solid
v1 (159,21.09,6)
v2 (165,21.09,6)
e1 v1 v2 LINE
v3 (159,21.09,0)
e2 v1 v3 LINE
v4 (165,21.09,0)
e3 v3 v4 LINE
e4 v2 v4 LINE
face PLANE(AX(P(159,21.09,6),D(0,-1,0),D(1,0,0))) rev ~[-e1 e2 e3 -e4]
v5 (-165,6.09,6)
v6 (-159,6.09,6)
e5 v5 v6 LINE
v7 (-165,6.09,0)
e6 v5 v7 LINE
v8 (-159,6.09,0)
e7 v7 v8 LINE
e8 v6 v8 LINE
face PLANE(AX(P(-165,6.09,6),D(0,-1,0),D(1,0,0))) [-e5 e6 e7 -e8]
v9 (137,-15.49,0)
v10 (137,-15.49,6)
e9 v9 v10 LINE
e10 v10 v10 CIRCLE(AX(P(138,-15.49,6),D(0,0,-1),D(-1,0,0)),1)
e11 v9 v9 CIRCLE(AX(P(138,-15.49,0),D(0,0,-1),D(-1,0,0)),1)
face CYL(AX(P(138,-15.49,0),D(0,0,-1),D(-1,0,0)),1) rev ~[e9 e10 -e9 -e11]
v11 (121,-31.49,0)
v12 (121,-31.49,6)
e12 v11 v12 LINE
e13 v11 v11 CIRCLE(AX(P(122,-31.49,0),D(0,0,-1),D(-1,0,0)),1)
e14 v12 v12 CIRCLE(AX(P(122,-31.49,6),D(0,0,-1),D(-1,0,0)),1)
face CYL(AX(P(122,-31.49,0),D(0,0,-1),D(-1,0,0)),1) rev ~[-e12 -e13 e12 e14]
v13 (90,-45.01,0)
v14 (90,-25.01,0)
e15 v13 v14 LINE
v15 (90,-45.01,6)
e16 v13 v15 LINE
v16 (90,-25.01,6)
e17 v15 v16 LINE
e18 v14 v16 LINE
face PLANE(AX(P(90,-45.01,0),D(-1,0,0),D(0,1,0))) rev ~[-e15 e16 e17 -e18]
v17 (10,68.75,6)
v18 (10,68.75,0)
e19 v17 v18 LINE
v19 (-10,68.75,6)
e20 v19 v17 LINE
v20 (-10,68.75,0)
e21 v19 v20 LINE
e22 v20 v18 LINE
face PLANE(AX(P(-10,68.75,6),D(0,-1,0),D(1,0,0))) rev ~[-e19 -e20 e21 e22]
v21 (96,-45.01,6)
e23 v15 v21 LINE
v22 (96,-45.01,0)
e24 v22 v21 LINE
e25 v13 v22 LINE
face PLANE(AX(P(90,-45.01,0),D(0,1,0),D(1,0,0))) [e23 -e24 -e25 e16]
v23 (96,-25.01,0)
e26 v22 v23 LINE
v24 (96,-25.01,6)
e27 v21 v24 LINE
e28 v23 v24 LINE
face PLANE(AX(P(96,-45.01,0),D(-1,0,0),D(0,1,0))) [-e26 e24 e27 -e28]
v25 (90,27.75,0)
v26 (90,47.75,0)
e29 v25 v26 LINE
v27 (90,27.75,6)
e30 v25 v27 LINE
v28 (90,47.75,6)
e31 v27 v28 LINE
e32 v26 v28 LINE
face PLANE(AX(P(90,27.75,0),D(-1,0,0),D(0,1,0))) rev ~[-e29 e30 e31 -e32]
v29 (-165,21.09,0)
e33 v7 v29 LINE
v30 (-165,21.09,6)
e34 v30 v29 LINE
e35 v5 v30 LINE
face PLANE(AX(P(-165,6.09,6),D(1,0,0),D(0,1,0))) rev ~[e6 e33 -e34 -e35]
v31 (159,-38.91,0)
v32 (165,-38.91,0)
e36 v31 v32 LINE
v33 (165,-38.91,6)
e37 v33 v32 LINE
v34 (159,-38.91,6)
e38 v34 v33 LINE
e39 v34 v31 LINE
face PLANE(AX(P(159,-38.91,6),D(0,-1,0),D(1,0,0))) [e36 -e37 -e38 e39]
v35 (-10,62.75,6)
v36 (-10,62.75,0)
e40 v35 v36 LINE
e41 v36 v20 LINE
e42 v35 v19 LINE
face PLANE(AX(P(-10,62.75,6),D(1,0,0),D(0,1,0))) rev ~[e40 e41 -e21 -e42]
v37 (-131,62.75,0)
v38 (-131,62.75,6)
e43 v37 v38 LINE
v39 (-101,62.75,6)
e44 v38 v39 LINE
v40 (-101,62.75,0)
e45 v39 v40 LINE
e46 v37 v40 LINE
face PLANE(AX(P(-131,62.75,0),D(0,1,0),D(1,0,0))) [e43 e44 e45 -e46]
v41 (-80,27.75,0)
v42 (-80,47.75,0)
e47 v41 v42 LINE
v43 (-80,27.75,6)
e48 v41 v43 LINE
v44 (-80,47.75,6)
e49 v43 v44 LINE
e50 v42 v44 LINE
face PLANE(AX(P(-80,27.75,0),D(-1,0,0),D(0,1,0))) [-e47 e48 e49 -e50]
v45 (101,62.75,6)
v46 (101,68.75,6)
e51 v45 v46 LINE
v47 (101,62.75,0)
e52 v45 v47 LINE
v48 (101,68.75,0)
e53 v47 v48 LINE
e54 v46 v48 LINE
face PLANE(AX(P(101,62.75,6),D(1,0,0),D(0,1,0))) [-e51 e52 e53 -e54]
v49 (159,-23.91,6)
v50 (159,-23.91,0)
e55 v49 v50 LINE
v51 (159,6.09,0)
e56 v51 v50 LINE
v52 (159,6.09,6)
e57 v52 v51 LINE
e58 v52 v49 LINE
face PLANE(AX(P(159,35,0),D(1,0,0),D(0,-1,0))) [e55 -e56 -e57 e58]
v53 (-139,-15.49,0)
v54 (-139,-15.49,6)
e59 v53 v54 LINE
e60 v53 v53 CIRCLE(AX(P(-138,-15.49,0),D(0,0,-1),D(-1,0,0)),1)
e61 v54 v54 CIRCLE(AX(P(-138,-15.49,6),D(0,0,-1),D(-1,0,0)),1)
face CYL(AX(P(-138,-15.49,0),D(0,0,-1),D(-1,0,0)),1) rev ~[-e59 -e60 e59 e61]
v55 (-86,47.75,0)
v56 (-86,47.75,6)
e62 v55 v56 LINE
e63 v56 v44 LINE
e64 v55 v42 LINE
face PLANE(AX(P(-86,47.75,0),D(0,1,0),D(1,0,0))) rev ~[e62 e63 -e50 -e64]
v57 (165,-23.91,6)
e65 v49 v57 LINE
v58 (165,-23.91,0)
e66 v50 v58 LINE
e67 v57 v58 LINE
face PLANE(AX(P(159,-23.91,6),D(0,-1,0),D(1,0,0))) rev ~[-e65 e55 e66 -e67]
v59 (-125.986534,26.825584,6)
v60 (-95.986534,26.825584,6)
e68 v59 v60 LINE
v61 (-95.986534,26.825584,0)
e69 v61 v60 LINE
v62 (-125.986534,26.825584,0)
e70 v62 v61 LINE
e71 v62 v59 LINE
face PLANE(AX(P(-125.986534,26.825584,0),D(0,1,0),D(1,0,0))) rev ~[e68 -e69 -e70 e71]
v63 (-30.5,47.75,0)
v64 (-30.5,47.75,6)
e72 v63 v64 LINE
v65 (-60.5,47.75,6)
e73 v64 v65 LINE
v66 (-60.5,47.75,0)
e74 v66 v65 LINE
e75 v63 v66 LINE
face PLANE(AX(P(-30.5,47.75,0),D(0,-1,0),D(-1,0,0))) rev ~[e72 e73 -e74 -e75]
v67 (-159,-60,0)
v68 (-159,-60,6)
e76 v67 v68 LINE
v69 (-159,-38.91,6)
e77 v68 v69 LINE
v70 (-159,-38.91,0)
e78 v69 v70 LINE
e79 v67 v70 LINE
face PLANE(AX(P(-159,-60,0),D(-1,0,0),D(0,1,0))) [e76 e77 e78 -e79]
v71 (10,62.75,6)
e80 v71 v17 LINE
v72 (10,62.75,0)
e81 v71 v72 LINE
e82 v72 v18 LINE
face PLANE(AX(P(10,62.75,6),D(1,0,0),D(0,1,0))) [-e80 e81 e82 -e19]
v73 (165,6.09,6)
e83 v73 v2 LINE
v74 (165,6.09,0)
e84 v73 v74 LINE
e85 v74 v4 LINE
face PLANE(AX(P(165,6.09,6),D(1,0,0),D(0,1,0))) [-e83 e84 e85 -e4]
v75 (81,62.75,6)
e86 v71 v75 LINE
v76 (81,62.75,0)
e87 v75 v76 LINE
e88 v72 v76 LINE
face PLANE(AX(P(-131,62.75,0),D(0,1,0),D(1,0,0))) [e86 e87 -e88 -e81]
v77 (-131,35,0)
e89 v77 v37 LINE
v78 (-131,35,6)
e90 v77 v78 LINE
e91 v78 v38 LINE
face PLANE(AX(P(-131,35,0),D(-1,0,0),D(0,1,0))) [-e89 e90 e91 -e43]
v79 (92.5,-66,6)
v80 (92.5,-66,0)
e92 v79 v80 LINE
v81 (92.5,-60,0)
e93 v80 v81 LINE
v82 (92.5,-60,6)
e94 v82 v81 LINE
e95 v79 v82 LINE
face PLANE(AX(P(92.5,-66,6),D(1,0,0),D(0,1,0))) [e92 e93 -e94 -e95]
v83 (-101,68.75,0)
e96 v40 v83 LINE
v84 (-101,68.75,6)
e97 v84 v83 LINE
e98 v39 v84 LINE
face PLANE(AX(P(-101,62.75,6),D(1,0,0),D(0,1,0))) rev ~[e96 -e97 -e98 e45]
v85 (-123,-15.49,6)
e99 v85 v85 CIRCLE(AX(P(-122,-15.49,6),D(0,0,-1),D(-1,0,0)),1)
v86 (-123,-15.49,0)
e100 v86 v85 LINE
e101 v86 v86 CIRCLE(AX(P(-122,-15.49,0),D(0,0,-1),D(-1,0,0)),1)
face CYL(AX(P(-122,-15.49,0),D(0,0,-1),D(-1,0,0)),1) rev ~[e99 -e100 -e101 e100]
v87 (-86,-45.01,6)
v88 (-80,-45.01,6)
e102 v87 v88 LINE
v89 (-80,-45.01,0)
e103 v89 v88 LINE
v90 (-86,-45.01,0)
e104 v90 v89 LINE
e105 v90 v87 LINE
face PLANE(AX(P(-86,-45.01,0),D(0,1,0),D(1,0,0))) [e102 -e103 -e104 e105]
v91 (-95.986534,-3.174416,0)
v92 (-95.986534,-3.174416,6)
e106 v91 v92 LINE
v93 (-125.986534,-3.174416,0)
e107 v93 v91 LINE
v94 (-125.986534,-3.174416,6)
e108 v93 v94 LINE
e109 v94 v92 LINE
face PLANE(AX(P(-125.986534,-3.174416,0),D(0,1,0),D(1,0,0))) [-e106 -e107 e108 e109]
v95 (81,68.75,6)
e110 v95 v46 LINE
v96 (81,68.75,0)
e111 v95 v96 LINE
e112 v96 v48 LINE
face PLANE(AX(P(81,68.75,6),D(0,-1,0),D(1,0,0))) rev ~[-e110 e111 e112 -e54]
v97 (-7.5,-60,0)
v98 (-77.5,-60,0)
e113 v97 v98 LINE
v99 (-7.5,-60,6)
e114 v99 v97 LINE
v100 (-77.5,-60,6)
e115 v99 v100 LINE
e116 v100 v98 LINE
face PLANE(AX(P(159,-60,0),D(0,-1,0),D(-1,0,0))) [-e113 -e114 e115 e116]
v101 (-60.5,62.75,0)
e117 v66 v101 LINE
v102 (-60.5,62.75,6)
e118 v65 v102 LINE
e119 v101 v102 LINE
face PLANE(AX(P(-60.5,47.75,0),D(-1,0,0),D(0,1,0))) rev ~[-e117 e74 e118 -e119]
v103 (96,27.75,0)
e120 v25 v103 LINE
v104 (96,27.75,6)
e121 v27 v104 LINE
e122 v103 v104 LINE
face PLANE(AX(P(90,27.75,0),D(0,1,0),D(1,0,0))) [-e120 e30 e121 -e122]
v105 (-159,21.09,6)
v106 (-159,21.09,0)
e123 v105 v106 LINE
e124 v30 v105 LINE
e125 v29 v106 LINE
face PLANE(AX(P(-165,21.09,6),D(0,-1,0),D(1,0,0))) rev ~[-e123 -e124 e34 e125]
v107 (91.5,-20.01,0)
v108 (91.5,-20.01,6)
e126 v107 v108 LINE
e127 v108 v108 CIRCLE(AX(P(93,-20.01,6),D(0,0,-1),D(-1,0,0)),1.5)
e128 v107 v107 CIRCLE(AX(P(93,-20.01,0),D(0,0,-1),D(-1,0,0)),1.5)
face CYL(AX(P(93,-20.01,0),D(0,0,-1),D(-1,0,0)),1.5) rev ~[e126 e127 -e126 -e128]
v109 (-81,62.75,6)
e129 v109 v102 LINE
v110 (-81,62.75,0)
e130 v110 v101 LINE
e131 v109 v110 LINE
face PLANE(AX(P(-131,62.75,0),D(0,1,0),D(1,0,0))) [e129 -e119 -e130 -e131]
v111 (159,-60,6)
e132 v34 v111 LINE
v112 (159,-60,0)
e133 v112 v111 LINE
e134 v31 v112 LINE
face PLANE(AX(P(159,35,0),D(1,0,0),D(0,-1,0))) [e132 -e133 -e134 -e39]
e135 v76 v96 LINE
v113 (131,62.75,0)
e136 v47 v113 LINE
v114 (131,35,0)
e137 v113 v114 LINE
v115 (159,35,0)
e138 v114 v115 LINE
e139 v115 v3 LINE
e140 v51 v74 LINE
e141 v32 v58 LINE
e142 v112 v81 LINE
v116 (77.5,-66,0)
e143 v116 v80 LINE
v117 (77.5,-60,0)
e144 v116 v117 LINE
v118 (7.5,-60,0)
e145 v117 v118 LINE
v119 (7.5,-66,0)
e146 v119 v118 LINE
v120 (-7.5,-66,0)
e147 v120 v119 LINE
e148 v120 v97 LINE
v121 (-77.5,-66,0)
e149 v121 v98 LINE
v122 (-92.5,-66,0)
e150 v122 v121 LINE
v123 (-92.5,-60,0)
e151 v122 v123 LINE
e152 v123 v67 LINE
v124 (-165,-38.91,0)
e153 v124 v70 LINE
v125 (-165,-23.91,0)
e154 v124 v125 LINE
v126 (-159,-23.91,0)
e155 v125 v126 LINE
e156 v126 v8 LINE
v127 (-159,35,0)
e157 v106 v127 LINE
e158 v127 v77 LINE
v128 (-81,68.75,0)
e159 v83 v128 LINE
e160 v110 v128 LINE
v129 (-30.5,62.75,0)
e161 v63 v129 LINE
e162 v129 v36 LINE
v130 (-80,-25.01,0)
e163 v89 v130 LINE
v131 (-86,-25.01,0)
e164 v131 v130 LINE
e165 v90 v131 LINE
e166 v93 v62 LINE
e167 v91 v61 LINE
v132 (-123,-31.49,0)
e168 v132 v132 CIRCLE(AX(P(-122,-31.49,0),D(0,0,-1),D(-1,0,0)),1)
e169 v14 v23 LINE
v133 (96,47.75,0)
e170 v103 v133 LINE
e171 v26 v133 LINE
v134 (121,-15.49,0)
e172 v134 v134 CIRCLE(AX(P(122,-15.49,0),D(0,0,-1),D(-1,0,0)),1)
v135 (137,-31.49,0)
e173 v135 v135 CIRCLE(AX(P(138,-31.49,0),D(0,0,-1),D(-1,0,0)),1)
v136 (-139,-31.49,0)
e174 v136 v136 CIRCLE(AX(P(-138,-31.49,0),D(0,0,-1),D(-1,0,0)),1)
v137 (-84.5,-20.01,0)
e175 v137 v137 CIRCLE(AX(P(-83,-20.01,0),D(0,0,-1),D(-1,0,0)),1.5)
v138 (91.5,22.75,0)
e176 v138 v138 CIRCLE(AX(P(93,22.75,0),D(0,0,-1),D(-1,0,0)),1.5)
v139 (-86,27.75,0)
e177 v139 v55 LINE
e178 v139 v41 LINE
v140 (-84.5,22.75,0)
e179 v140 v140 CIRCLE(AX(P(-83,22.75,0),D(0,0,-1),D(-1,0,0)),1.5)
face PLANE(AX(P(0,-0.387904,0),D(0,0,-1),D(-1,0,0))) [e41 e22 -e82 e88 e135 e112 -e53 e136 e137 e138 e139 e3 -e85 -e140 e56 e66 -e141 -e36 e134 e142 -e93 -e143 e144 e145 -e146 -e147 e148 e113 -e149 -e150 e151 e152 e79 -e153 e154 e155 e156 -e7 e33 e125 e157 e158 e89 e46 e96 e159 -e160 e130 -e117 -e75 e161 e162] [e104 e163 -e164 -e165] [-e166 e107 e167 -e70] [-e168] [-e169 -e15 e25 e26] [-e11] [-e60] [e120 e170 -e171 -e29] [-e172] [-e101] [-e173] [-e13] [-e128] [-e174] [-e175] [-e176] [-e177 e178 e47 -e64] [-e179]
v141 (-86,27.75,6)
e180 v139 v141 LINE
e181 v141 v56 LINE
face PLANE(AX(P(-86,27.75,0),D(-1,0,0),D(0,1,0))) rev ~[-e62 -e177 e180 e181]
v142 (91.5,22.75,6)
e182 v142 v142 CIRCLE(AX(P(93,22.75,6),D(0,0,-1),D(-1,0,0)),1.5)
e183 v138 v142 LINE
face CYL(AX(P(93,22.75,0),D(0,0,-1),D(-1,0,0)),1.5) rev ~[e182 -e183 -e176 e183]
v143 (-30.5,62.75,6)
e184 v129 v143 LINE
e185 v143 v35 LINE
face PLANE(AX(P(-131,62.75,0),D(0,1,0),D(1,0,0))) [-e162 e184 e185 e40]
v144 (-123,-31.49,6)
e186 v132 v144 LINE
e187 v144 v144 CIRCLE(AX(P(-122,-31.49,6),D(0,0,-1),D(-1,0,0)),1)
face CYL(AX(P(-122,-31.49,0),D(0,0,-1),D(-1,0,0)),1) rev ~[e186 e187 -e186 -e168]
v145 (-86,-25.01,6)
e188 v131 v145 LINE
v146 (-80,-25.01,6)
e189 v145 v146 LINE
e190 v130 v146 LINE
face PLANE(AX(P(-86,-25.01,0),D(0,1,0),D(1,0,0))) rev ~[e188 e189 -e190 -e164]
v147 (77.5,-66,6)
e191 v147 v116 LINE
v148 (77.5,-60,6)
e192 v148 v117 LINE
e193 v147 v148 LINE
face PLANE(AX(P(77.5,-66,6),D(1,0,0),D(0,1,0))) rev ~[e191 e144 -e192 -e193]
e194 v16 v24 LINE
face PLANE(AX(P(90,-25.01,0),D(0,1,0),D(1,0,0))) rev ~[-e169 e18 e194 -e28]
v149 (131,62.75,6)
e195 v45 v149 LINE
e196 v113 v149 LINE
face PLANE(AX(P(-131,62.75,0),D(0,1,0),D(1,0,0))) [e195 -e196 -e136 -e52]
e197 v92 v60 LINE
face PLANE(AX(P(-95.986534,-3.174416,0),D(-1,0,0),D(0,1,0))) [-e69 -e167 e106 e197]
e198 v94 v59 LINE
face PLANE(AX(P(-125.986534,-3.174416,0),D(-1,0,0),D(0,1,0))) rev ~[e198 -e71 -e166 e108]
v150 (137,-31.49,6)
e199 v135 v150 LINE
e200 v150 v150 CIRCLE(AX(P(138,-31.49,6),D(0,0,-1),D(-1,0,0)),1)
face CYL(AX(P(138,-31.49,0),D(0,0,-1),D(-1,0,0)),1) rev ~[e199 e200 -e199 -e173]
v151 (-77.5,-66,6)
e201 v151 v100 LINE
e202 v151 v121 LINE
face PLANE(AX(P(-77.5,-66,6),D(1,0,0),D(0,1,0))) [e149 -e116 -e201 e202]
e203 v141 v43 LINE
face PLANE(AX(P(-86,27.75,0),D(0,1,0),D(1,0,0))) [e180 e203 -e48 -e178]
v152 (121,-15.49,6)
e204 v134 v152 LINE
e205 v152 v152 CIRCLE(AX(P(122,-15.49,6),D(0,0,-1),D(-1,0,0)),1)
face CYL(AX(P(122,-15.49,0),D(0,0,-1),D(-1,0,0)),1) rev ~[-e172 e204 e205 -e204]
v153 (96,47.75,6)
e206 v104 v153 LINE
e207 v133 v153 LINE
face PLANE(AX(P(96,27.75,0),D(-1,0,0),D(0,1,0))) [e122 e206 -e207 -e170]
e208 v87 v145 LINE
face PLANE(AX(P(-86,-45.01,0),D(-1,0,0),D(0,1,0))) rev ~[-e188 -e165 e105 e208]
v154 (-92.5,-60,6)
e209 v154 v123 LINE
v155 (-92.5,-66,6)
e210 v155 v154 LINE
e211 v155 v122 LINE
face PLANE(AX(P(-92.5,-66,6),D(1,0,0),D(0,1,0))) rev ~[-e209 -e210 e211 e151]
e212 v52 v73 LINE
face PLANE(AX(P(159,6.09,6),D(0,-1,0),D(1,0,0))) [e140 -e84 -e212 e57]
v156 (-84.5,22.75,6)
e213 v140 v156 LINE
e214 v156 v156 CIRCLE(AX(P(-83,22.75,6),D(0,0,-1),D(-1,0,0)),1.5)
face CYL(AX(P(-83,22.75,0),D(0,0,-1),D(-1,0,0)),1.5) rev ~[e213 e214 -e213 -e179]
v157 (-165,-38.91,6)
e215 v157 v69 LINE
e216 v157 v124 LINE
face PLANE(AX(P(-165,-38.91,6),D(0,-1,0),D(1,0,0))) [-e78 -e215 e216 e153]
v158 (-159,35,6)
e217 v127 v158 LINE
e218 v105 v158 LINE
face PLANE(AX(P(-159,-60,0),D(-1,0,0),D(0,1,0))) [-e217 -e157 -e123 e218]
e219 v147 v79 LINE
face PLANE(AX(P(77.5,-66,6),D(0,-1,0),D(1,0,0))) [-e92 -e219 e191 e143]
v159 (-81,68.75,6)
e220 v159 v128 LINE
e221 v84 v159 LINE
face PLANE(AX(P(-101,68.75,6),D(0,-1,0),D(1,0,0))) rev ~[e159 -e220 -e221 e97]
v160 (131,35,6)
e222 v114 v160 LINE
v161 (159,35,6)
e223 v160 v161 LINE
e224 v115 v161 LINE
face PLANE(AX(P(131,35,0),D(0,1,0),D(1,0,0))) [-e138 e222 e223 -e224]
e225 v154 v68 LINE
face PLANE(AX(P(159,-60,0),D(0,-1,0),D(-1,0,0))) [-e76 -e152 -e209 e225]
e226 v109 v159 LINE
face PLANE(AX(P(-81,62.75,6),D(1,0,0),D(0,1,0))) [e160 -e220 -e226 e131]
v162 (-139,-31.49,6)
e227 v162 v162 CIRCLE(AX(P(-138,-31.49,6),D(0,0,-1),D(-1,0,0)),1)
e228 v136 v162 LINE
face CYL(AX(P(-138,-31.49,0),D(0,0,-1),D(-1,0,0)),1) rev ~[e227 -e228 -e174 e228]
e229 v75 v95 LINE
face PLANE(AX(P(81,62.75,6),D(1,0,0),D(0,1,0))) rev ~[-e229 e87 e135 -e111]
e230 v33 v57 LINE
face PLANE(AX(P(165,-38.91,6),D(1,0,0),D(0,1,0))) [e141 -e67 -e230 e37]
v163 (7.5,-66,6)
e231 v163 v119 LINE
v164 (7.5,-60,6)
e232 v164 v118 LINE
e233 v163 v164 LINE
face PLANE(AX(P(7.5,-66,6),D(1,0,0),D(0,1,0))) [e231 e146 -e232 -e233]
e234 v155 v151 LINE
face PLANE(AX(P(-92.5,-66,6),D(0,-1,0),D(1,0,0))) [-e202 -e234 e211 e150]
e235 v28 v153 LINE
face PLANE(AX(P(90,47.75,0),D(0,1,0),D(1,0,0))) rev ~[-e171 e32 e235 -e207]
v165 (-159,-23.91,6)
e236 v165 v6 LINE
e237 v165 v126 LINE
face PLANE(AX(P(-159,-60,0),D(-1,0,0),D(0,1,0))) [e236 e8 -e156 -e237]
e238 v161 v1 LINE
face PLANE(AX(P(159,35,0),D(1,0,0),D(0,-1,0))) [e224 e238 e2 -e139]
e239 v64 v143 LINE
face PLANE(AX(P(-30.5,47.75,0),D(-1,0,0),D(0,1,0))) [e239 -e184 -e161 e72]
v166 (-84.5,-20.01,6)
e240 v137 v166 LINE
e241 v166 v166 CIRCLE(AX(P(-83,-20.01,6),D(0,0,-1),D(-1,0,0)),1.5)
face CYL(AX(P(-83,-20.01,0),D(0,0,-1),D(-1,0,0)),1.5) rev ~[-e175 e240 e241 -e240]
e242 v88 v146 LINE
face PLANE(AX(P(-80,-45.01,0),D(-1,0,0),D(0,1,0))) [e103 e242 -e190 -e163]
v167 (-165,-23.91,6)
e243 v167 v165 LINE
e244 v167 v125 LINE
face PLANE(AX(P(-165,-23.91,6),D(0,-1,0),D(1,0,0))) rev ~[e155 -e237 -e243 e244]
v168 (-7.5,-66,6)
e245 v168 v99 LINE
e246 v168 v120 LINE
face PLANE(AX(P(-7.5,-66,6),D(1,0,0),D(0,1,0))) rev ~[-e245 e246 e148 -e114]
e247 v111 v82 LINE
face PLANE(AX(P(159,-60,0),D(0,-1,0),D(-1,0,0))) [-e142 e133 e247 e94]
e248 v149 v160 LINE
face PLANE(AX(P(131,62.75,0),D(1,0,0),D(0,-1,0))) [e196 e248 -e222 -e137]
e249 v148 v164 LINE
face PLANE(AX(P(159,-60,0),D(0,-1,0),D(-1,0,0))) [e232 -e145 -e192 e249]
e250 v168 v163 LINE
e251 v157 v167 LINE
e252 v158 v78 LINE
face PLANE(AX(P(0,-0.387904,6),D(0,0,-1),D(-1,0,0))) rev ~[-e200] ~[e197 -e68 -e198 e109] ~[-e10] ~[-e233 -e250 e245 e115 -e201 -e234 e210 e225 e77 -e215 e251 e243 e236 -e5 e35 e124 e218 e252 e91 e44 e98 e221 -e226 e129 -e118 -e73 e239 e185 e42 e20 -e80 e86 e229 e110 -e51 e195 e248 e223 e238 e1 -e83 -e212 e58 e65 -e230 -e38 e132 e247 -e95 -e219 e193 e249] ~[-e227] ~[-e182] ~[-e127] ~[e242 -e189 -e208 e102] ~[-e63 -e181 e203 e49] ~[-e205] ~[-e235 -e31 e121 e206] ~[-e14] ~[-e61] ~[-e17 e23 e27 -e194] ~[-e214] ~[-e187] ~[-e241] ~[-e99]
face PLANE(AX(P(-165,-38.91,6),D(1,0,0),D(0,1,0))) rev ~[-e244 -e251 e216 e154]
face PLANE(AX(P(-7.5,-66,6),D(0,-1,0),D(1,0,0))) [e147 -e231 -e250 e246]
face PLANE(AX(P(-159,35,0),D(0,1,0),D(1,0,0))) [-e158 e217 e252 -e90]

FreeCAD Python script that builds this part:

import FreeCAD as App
import Part
import Sketcher

V = App.Vector
Q = App.Units.Quantity

doc = App.newDocument("Part")
body = doc.addObject("PartDesign::Body", "Body")

sketch1 = doc.addObject("Sketcher::SketchObject", "Sketch")
body.addObject(sketch1)
sketch1.AttachmentSupport = (doc.XY_Plane, [""])
sketch1.MapMode = "FlatFace"
sketch1.addGeometry(Part.LineSegment(V(-131, 35, 0), V(-159, 35, 0)), False)
sketch1.addGeometry(Part.LineSegment(V(-159, 35, 0), V(-159, -60, 0)), False)
sketch1.addGeometry(Part.LineSegment(V(-159, -60, 0), V(159, -60, 0)), False)
sketch1.addGeometry(Part.LineSegment(V(159, -60, 0), V(159, 35, 0)), False)
sketch1.addGeometry(Part.LineSegment(V(159, 35, 0), V(131, 35, 0)), False)
sketch1.addGeometry(Part.LineSegment(V(131, 35, 0), V(131, 63, 0)), False)
sketch1.addGeometry(Part.LineSegment(V(131, 63, 0), V(-131, 63, 0)), False)
sketch1.addGeometry(Part.LineSegment(V(-131, 63, 0), V(-131, 35, 0)), False)
sketch1.addGeometry(Part.LineSegment(V(90, -45, 0), V(90, -25, 0)), False)
sketch1.addGeometry(Part.LineSegment(V(90, -25, 0), V(96, -25, 0)), False)
sketch1.addGeometry(Part.LineSegment(V(96, -25, 0), V(96, -45, 0)), False)
sketch1.addGeometry(Part.LineSegment(V(96, -45, 0), V(90, -45, 0)), False)
sketch1.addGeometry(Part.LineSegment(V(-86, -45, 0), V(-86, -25, 0)), False)
sketch1.addGeometry(Part.LineSegment(V(-86, -25, 0), V(-80, -25, 0)), False)
sketch1.addGeometry(Part.LineSegment(V(-80, -25, 0), V(-80, -45, 0)), False)
sketch1.addGeometry(Part.LineSegment(V(-80, -45, 0), V(-86, -45, 0)), False)
sketch1.addGeometry(Part.LineSegment(V(90, 28, 0), V(90, 48, 0)), False)
sketch1.addGeometry(Part.LineSegment(V(90, 48, 0), V(96, 48, 0)), False)
sketch1.addGeometry(Part.LineSegment(V(96, 48, 0), V(96, 28, 0)), False)
sketch1.addGeometry(Part.LineSegment(V(96, 28, 0), V(90, 28, 0)), False)
sketch1.addGeometry(Part.LineSegment(V(-126, -3, 0), V(-126, 27, 0)), False)
sketch1.addGeometry(Part.LineSegment(V(-126, 27, 0), V(-96, 27, 0)), False)
sketch1.addGeometry(Part.LineSegment(V(-96, 27, 0), V(-96, -3, 0)), False)
sketch1.addGeometry(Part.LineSegment(V(-96, -3, 0), V(-126, -3, 0)), False)
sketch1.addGeometry(Part.LineSegment(V(-86, 28, 0), V(-86, 48, 0)), False)
sketch1.addGeometry(Part.LineSegment(V(-86, 48, 0), V(-80, 48, 0)), False)
sketch1.addGeometry(Part.LineSegment(V(-80, 48, 0), V(-80, 28, 0)), False)
sketch1.addGeometry(Part.LineSegment(V(-80, 28, 0), V(-86, 28, 0)), False)
sketch1.addConstraint(Sketcher.Constraint("Coincident", 0, 2, 1, 1))
sketch1.addConstraint(Sketcher.Constraint("Coincident", 1, 2, 2, 1))
sketch1.addConstraint(Sketcher.Constraint("Coincident", 2, 2, 3, 1))
sketch1.addConstraint(Sketcher.Constraint("Coincident", 3, 2, 4, 1))
sketch1.addConstraint(Sketcher.Constraint("Coincident", 4, 2, 5, 1))
sketch1.addConstraint(Sketcher.Constraint("Coincident", 5, 2, 6, 1))
sketch1.addConstraint(Sketcher.Constraint("Coincident", 6, 2, 7, 1))
sketch1.addConstraint(Sketcher.Constraint("Coincident", 7, 2, 0, 1))
sketch1.addConstraint(Sketcher.Constraint("Coincident", 8, 2, 9, 1))
sketch1.addConstraint(Sketcher.Constraint("Coincident", 9, 2, 10, 1))
sketch1.addConstraint(Sketcher.Constraint("Coincident", 10, 2, 11, 1))
sketch1.addConstraint(Sketcher.Constraint("Coincident", 11, 2, 8, 1))
sketch1.addConstraint(Sketcher.Constraint("Coincident", 12, 2, 13, 1))
sketch1.addConstraint(Sketcher.Constraint("Coincident", 13, 2, 14, 1))
sketch1.addConstraint(Sketcher.Constraint("Coincident", 14, 2, 15, 1))
sketch1.addConstraint(Sketcher.Constraint("Coincident", 15, 2, 12, 1))
sketch1.addConstraint(Sketcher.Constraint("Coincident", 16, 2, 17, 1))
sketch1.addConstraint(Sketcher.Constraint("Coincident", 17, 2, 18, 1))
sketch1.addConstraint(Sketcher.Constraint("Coincident", 18, 2, 19, 1))
sketch1.addConstraint(Sketcher.Constraint("Coincident", 19, 2, 16, 1))
sketch1.addConstraint(Sketcher.Constraint("Coincident", 20, 2, 21, 1))
sketch1.addConstraint(Sketcher.Constraint("Coincident", 21, 2, 22, 1))
sketch1.addConstraint(Sketcher.Constraint("Coincident", 22, 2, 23, 1))
sketch1.addConstraint(Sketcher.Constraint("Coincident", 23, 2, 20, 1))
sketch1.addConstraint(Sketcher.Constraint("Coincident", 24, 2, 25, 1))
sketch1.addConstraint(Sketcher.Constraint("Coincident", 25, 2, 26, 1))
sketch1.addConstraint(Sketcher.Constraint("Coincident", 26, 2, 27, 1))
sketch1.addConstraint(Sketcher.Constraint("Coincident", 27, 2, 24, 1))
sketch1.addConstraint(Sketcher.Constraint("Horizontal", 0))
sketch1.addConstraint(Sketcher.Constraint("Vertical", 1))
sketch1.addConstraint(Sketcher.Constraint("Horizontal", 2))
sketch1.addConstraint(Sketcher.Constraint("Vertical", 3))
sketch1.addConstraint(Sketcher.Constraint("Horizontal", 4))
sketch1.addConstraint(Sketcher.Constraint("Vertical", 5))
sketch1.addConstraint(Sketcher.Constraint("Horizontal", 6))
sketch1.addConstraint(Sketcher.Constraint("Vertical", 7))
sketch1.addConstraint(Sketcher.Constraint("Vertical", 8))
sketch1.addConstraint(Sketcher.Constraint("Horizontal", 9))
sketch1.addConstraint(Sketcher.Constraint("Vertical", 10))
sketch1.addConstraint(Sketcher.Constraint("Horizontal", 11))
sketch1.addConstraint(Sketcher.Constraint("Vertical", 12))
sketch1.addConstraint(Sketcher.Constraint("Horizontal", 13))
sketch1.addConstraint(Sketcher.Constraint("Vertical", 14))
sketch1.addConstraint(Sketcher.Constraint("Horizontal", 15))
sketch1.addConstraint(Sketcher.Constraint("Vertical", 16))
sketch1.addConstraint(Sketcher.Constraint("Horizontal", 17))
sketch1.addConstraint(Sketcher.Constraint("Vertical", 18))
sketch1.addConstraint(Sketcher.Constraint("Horizontal", 19))
sketch1.addConstraint(Sketcher.Constraint("Vertical", 20))
sketch1.addConstraint(Sketcher.Constraint("Horizontal", 21))
sketch1.addConstraint(Sketcher.Constraint("Vertical", 22))
sketch1.addConstraint(Sketcher.Constraint("Horizontal", 23))
sketch1.addConstraint(Sketcher.Constraint("Vertical", 24))
sketch1.addConstraint(Sketcher.Constraint("Horizontal", 25))
sketch1.addConstraint(Sketcher.Constraint("Vertical", 26))
sketch1.addConstraint(Sketcher.Constraint("Horizontal", 27))
sketch1.addConstraint(Sketcher.Constraint("Symmetric", 0, 2, 3, 2, -2))
sketch1.addConstraint(Sketcher.Constraint("Horizontal", 9, 2, 12, 2))
sketch1.addConstraint(Sketcher.Constraint("Horizontal", 11, 2, 14, 2))
sketch1.addConstraint(Sketcher.Constraint("Horizontal", 17, 2, 24, 2))
sketch1.addConstraint(Sketcher.Constraint("Horizontal", 19, 2, 26, 2))
sketch1.addConstraint(Sketcher.Constraint("Vertical", 11, 2, 16, 2))
sketch1.addConstraint(Sketcher.Constraint("Vertical", 10, 2, 17, 2))
sketch1.addConstraint(Sketcher.Constraint("Vertical", 15, 2, 24, 2))
sketch1.addConstraint(Sketcher.Constraint("Vertical", 14, 2, 25, 2))
sketch1.addConstraint(Sketcher.Constraint("Equal", 0, 4))
sketch1.addConstraint(Sketcher.Constraint("Equal", 11, 13))
sketch1.addConstraint(Sketcher.Constraint("Equal", 14, 16))
sketch1.addConstraint(Sketcher.Constraint("Equal", 23, 20))
sketch1.addConstraint(Sketcher.Constraint("DistanceX", 0, 2, 0, 1, Q("28 mm")))
sketch1.addConstraint(Sketcher.Constraint("DistanceX", 2, 1, 2, 2, Q("318 mm")))
sketch1.addConstraint(Sketcher.Constraint("DistanceX", 9, 1, 9, 2, Q("6 mm")))
sketch1.addConstraint(Sketcher.Constraint("DistanceX", 21, 1, 21, 2, Q("30 mm")))
sketch1.addConstraint(Sketcher.Constraint("DistanceY", 1, 2, 1, 1, Q("95 mm")))
sketch1.addConstraint(Sketcher.Constraint("DistanceY", 8, 1, 8, 2, Q("20 mm")))
sketch1.addConstraint(Sketcher.Constraint("DistanceY", -1, 1, 0, 2, Q("35 mm")))
sketch1.addConstraint(Sketcher.Constraint("DistanceX", -1, 1, 8, 2, Q("90 mm")))
sketch1.addConstraint(Sketcher.Constraint("DistanceX", 12, 2, -1, 1, Q("86 mm")))
sketch1.addConstraint(Sketcher.Constraint("DistanceY", 16, 2, 5, 2, Q("15 mm")))
sketch1.addConstraint(Sketcher.Constraint("DistanceY", 5, 1, 5, 2, Q("27.75 mm")))
sketch1.addConstraint(Sketcher.Constraint("DistanceY", 8, 2, -1, 1, Q("25.01 mm")))
sketch1.addConstraint(Sketcher.Constraint("DistanceX", 20, 2, -1, 1, Q("125.986534 mm")))
sketch1.addConstraint(Sketcher.Constraint("DistanceY", -1, 1, 20, 2, Q("26.825584 mm")))
pad1 = doc.addObject("PartDesign::Pad", "Pad")
body.addObject(pad1)
pad1.Profile = sketch1
pad1.Length = 6

sketch2 = doc.addObject("Sketcher::SketchObject", "Sketch001")
body.addObject(sketch2)
sketch2.AttachmentSupport = (doc.XY_Plane, [""])
sketch2.MapMode = "FlatFace"
sketch2.AttachmentOffset = App.Placement(V(0, 0, 6), App.Rotation())
sketch2.addGeometry(Part.LineSegment(V(-92, -60, 0), V(-92, -66, 0)), False)
sketch2.addGeometry(Part.LineSegment(V(-92, -66, 0), V(-78, -66, 0)), False)
sketch2.addGeometry(Part.LineSegment(V(-78, -66, 0), V(-78, -60, 0)), False)
sketch2.addGeometry(Part.LineSegment(V(-78, -60, 0), V(-92, -60, 0)), False)
sketch2.addGeometry(Part.LineSegment(V(-8, -60, 0), V(-8, -66, 0)), False)
sketch2.addGeometry(Part.LineSegment(V(-8, -66, 0), V(8, -66, 0)), False)
sketch2.addGeometry(Part.LineSegment(V(8, -66, 0), V(8, -60, 0)), False)
sketch2.addGeometry(Part.LineSegment(V(8, -60, 0), V(-8, -60, 0)), False)
sketch2.addGeometry(Part.LineSegment(V(78, -60, 0), V(78, -66, 0)), False)
sketch2.addGeometry(Part.LineSegment(V(78, -66, 0), V(92, -66, 0)), False)
sketch2.addGeometry(Part.LineSegment(V(92, -66, 0), V(92, -60, 0)), False)
sketch2.addGeometry(Part.LineSegment(V(92, -60, 0), V(78, -60, 0)), False)
sketch2.addGeometry(Part.LineSegment(V(-165, 21, 0), V(-165, 6, 0)), False)
sketch2.addGeometry(Part.LineSegment(V(-165, 6, 0), V(-159, 6, 0)), False)
sketch2.addGeometry(Part.LineSegment(V(-159, 6, 0), V(-159, 21, 0)), False)
sketch2.addGeometry(Part.LineSegment(V(-159, 21, 0), V(-165, 21, 0)), False)
sketch2.addGeometry(Part.LineSegment(V(-165, -24, 0), V(-165, -39, 0)), False)
sketch2.addGeometry(Part.LineSegment(V(-165, -39, 0), V(-159, -39, 0)), False)
sketch2.addGeometry(Part.LineSegment(V(-159, -39, 0), V(-159, -24, 0)), False)
sketch2.addGeometry(Part.LineSegment(V(-159, -24, 0), V(-165, -24, 0)), False)
sketch2.addGeometry(Part.LineSegment(V(159, -24, 0), V(159, -39, 0)), False)
sketch2.addGeometry(Part.LineSegment(V(159, -39, 0), V(165, -39, 0)), False)
sketch2.addGeometry(Part.LineSegment(V(165, -39, 0), V(165, -24, 0)), False)
sketch2.addGeometry(Part.LineSegment(V(165, -24, 0), V(159, -24, 0)), False)
sketch2.addGeometry(Part.LineSegment(V(159, 21, 0), V(159, 6, 0)), False)
sketch2.addGeometry(Part.LineSegment(V(159, 6, 0), V(165, 6, 0)), False)
sketch2.addGeometry(Part.LineSegment(V(165, 6, 0), V(165, 21, 0)), False)
sketch2.addGeometry(Part.LineSegment(V(165, 21, 0), V(159, 21, 0)), False)
sketch2.addGeometry(Part.LineSegment(V(81, 69, 0), V(81, 63, 0)), False)
sketch2.addGeometry(Part.LineSegment(V(81, 63, 0), V(101, 63, 0)), False)
sketch2.addGeometry(Part.LineSegment(V(101, 63, 0), V(101, 69, 0)), False)
sketch2.addGeometry(Part.LineSegment(V(101, 69, 0), V(81, 69, 0)), False)
sketch2.addGeometry(Part.LineSegment(V(-101, 69, 0), V(-101, 63, 0)), False)
sketch2.addGeometry(Part.LineSegment(V(-101, 63, 0), V(-81, 63, 0)), False)
sketch2.addGeometry(Part.LineSegment(V(-81, 63, 0), V(-81, 69, 0)), False)
sketch2.addGeometry(Part.LineSegment(V(-81, 69, 0), V(-101, 69, 0)), False)
sketch2.addGeometry(Part.LineSegment(V(-10, 69, 0), V(-10, 63, 0)), False)
sketch2.addGeometry(Part.LineSegment(V(-10, 63, 0), V(10, 63, 0)), False)
sketch2.addGeometry(Part.LineSegment(V(10, 63, 0), V(10, 69, 0)), False)
sketch2.addGeometry(Part.LineSegment(V(10, 69, 0), V(-10, 69, 0)), False)
sketch2.addConstraint(Sketcher.Constraint("Coincident", 0, 2, 1, 1))
sketch2.addConstraint(Sketcher.Constraint("Coincident", 1, 2, 2, 1))
sketch2.addConstraint(Sketcher.Constraint("Coincident", 2, 2, 3, 1))
sketch2.addConstraint(Sketcher.Constraint("Coincident", 3, 2, 0, 1))
sketch2.addConstraint(Sketcher.Constraint("Coincident", 4, 2, 5, 1))
sketch2.addConstraint(Sketcher.Constraint("Coincident", 5, 2, 6, 1))
sketch2.addConstraint(Sketcher.Constraint("Coincident", 6, 2, 7, 1))
sketch2.addConstraint(Sketcher.Constraint("Coincident", 7, 2, 4, 1))
sketch2.addConstraint(Sketcher.Constraint("Coincident", 8, 2, 9, 1))
sketch2.addConstraint(Sketcher.Constraint("Coincident", 9, 2, 10, 1))
sketch2.addConstraint(Sketcher.Constraint("Coincident", 10, 2, 11, 1))
sketch2.addConstraint(Sketcher.Constraint("Coincident", 11, 2, 8, 1))
sketch2.addConstraint(Sketcher.Constraint("Coincident", 12, 2, 13, 1))
sketch2.addConstraint(Sketcher.Constraint("Coincident", 13, 2, 14, 1))
sketch2.addConstraint(Sketcher.Constraint("Coincident", 14, 2, 15, 1))
sketch2.addConstraint(Sketcher.Constraint("Coincident", 15, 2, 12, 1))
sketch2.addConstraint(Sketcher.Constraint("Coincident", 16, 2, 17, 1))
sketch2.addConstraint(Sketcher.Constraint("Coincident", 17, 2, 18, 1))
sketch2.addConstraint(Sketcher.Constraint("Coincident", 18, 2, 19, 1))
sketch2.addConstraint(Sketcher.Constraint("Coincident", 19, 2, 16, 1))
sketch2.addConstraint(Sketcher.Constraint("Coincident", 20, 2, 21, 1))
sketch2.addConstraint(Sketcher.Constraint("Coincident", 21, 2, 22, 1))
sketch2.addConstraint(Sketcher.Constraint("Coincident", 22, 2, 23, 1))
sketch2.addConstraint(Sketcher.Constraint("Coincident", 23, 2, 20, 1))
sketch2.addConstraint(Sketcher.Constraint("Coincident", 24, 2, 25, 1))
sketch2.addConstraint(Sketcher.Constraint("Coincident", 25, 2, 26, 1))
sketch2.addConstraint(Sketcher.Constraint("Coincident", 26, 2, 27, 1))
sketch2.addConstraint(Sketcher.Constraint("Coincident", 27, 2, 24, 1))
sketch2.addConstraint(Sketcher.Constraint("Coincident", 28, 2, 29, 1))
sketch2.addConstraint(Sketcher.Constraint("Coincident", 29, 2, 30, 1))
sketch2.addConstraint(Sketcher.Constraint("Coincident", 30, 2, 31, 1))
sketch2.addConstraint(Sketcher.Constraint("Coincident", 31, 2, 28, 1))
sketch2.addConstraint(Sketcher.Constraint("Coincident", 32, 2, 33, 1))
sketch2.addConstraint(Sketcher.Constraint("Coincident", 33, 2, 34, 1))
sketch2.addConstraint(Sketcher.Constraint("Coincident", 34, 2, 35, 1))
sketch2.addConstraint(Sketcher.Constraint("Coincident", 35, 2, 32, 1))
sketch2.addConstraint(Sketcher.Constraint("Coincident", 36, 2, 37, 1))
sketch2.addConstraint(Sketcher.Constraint("Coincident", 37, 2, 38, 1))
sketch2.addConstraint(Sketcher.Constraint("Coincident", 38, 2, 39, 1))
sketch2.addConstraint(Sketcher.Constraint("Coincident", 39, 2, 36, 1))
sketch2.addConstraint(Sketcher.Constraint("Vertical", 0))
sketch2.addConstraint(Sketcher.Constraint("Horizontal", 1))
sketch2.addConstraint(Sketcher.Constraint("Vertical", 2))
sketch2.addConstraint(Sketcher.Constraint("Horizontal", 3))
sketch2.addConstraint(Sketcher.Constraint("Vertical", 4))
sketch2.addConstraint(Sketcher.Constraint("Horizontal", 5))
sketch2.addConstraint(Sketcher.Constraint("Vertical", 6))
sketch2.addConstraint(Sketcher.Constraint("Horizontal", 7))
sketch2.addConstraint(Sketcher.Constraint("Vertical", 8))
sketch2.addConstraint(Sketcher.Constraint("Horizontal", 9))
sketch2.addConstraint(Sketcher.Constraint("Vertical", 10))
sketch2.addConstraint(Sketcher.Constraint("Horizontal", 11))
sketch2.addConstraint(Sketcher.Constraint("Vertical", 12))
sketch2.addConstraint(Sketcher.Constraint("Horizontal", 13))
sketch2.addConstraint(Sketcher.Constraint("Vertical", 14))
sketch2.addConstraint(Sketcher.Constraint("Horizontal", 15))
sketch2.addConstraint(Sketcher.Constraint("Vertical", 16))
sketch2.addConstraint(Sketcher.Constraint("Horizontal", 17))
sketch2.addConstraint(Sketcher.Constraint("Vertical", 18))
sketch2.addConstraint(Sketcher.Constraint("Horizontal", 19))
sketch2.addConstraint(Sketcher.Constraint("Vertical", 20))
sketch2.addConstraint(Sketcher.Constraint("Horizontal", 21))
sketch2.addConstraint(Sketcher.Constraint("Vertical", 22))
sketch2.addConstraint(Sketcher.Constraint("Horizontal", 23))
sketch2.addConstraint(Sketcher.Constraint("Vertical", 24))
sketch2.addConstraint(Sketcher.Constraint("Horizontal", 25))
sketch2.addConstraint(Sketcher.Constraint("Vertical", 26))
sketch2.addConstraint(Sketcher.Constraint("Horizontal", 27))
sketch2.addConstraint(Sketcher.Constraint("Vertical", 28))
sketch2.addConstraint(Sketcher.Constraint("Horizontal", 29))
sketch2.addConstraint(Sketcher.Constraint("Vertical", 30))
sketch2.addConstraint(Sketcher.Constraint("Horizontal", 31))
sketch2.addConstraint(Sketcher.Constraint("Vertical", 32))
sketch2.addConstraint(Sketcher.Constraint("Horizontal", 33))
sketch2.addConstraint(Sketcher.Constraint("Vertical", 34))
sketch2.addConstraint(Sketcher.Constraint("Horizontal", 35))
sketch2.addConstraint(Sketcher.Constraint("Vertical", 36))
sketch2.addConstraint(Sketcher.Constraint("Horizontal", 37))
sketch2.addConstraint(Sketcher.Constraint("Vertical", 38))
sketch2.addConstraint(Sketcher.Constraint("Horizontal", 39))
sketch2.addConstraint(Sketcher.Constraint("Symmetric", 1, 2, 8, 2, -2))
sketch2.addConstraint(Sketcher.Constraint("Symmetric", 3, 2, 10, 2, -2))
sketch2.addConstraint(Sketcher.Constraint("Symmetric", 17, 2, 20, 2, -2))
sketch2.addConstraint(Sketcher.Constraint("Symmetric", 19, 2, 22, 2, -2))
sketch2.addConstraint(Sketcher.Constraint("Symmetric", 13, 2, 24, 2, -2))
sketch2.addConstraint(Sketcher.Constraint("Symmetric", 15, 2, 26, 2, -2))
sketch2.addConstraint(Sketcher.Constraint("Symmetric", 29, 2, 32, 2, -2))
sketch2.addConstraint(Sketcher.Constraint("Symmetric", 31, 2, 34, 2, -2))
sketch2.addConstraint(Sketcher.Constraint("Horizontal", 1, 2, 4, 2))
sketch2.addConstraint(Sketcher.Constraint("Horizontal", 3, 2, 6, 2))
sketch2.addConstraint(Sketcher.Constraint("Horizontal", 33, 2, 36, 2))
sketch2.addConstraint(Sketcher.Constraint("Horizontal", 35, 2, 38, 2))
sketch2.addConstraint(Sketcher.Constraint("Vertical", 15, 2, 16, 2))
sketch2.addConstraint(Sketcher.Constraint("Vertical", 14, 2, 17, 2))
sketch2.addConstraint(Sketcher.Constraint("Equal", 3, 5))
sketch2.addConstraint(Sketcher.Constraint("Equal", 35, 37))
sketch2.addConstraint(Sketcher.Constraint("Equal", 27, 0))
sketch2.addConstraint(Sketcher.Constraint("Equal", 11, 12))
sketch2.addConstraint(Sketcher.Constraint("Equal", 14, 16))
sketch2.addConstraint(Sketcher.Constraint("Equal", 10, 28))
sketch2.addConstraint(Sketcher.Constraint("DistanceX", 1, 1, 1, 2, Q("15 mm")))
sketch2.addConstraint(Sketcher.Constraint("DistanceX", 13, 1, 13, 2, Q("6 mm")))
sketch2.addConstraint(Sketcher.Constraint("DistanceX", 29, 1, 29, 2, Q("20 mm")))
sketch2.addConstraint(Sketcher.Constraint("DistanceY", 0, 2, -1, 1, Q("66 mm")))
sketch2.addConstraint(Sketcher.Constraint("DistanceX", 12, 2, -1, 1, Q("165 mm")))
sketch2.addConstraint(Sketcher.Constraint("DistanceX", -1, 1, 28, 2, Q("81 mm")))
sketch2.addConstraint(Sketcher.Constraint("DistanceX", 36, 2, -1, 1, Q("10 mm")))
sketch2.addConstraint(Sketcher.Constraint("DistanceX", 1, 2, 4, 2, Q("70 mm")))
sketch2.addConstraint(Sketcher.Constraint("DistanceX", 5, 2, 8, 2, Q("70 mm")))
sketch2.addConstraint(Sketcher.Constraint("DistanceY", 16, 2, 12, 2, Q("45 mm")))
sketch2.addConstraint(Sketcher.Constraint("DistanceY", -1, 1, 12, 2, Q("6.09 mm")))
sketch2.addConstraint(Sketcher.Constraint("DistanceY", -1, 1, 28, 2, Q("62.75 mm")))
pad2 = doc.addObject("PartDesign::Pad", "Pad001")
body.addObject(pad2)
pad2.Profile = sketch2
pad2.Length = 6
pad2.Reversed = True

sketch3 = doc.addObject("Sketcher::SketchObject", "Sketch002")
body.addObject(sketch3)
sketch3.AttachmentSupport = (doc.XY_Plane, [""])
sketch3.MapMode = "FlatFace"
sketch3.addGeometry(Part.Circle(V(-138, -31.5, 0), V(0, 0, 1), 1), False)
sketch3.addGeometry(Part.Circle(V(-138, -15.5, 0), V(0, 0, 1), 1), False)
sketch3.addGeometry(Part.Circle(V(-122, -15.5, 0), V(0, 0, 1), 1), False)
sketch3.addGeometry(Part.Circle(V(-122, -31.5, 0), V(0, 0, 1), 1), False)
sketch3.addGeometry(Part.Circle(V(122, -31.5, 0), V(0, 0, 1), 1), False)
sketch3.addGeometry(Part.Circle(V(122, -15.5, 0), V(0, 0, 1), 1), False)
sketch3.addGeometry(Part.Circle(V(138, -15.5, 0), V(0, 0, 1), 1), False)
sketch3.addGeometry(Part.Circle(V(138, -31.5, 0), V(0, 0, 1), 1), False)
sketch3.addGeometry(Part.Circle(V(-83, 22.8, 0), V(0, 0, 1), 1.5), False)
sketch3.addGeometry(Part.Circle(V(-83, -20, 0), V(0, 0, 1), 1.5), False)
sketch3.addGeometry(Part.Circle(V(93, 22.8, 0), V(0, 0, 1), 1.5), False)
sketch3.addGeometry(Part.Circle(V(93, -20, 0), V(0, 0, 1), 1.5), False)
sketch3.addConstraint(Sketcher.Constraint("Equal", 0, 1))
sketch3.addConstraint(Sketcher.Constraint("Equal", 1, 2))
sketch3.addConstraint(Sketcher.Constraint("Equal", 2, 3))
sketch3.addConstraint(Sketcher.Constraint("Equal", 3, 4))
sketch3.addConstraint(Sketcher.Constraint("Equal", 4, 5))
sketch3.addConstraint(Sketcher.Constraint("Equal", 5, 6))
sketch3.addConstraint(Sketcher.Constraint("Equal", 6, 7))
sketch3.addConstraint(Sketcher.Constraint("Equal", 8, 9))
sketch3.addConstraint(Sketcher.Constraint("Equal", 9, 10))
sketch3.addConstraint(Sketcher.Constraint("Equal", 10, 11))
sketch3.addConstraint(Sketcher.Constraint("Symmetric", 3, 3, 4, 3, -2))
sketch3.addConstraint(Sketcher.Constraint("Symmetric", 2, 3, 5, 3, -2))
sketch3.addConstraint(Sketcher.Constraint("Symmetric", 1, 3, 6, 3, -2))
sketch3.addConstraint(Sketcher.Constraint("Symmetric", 0, 3, 7, 3, -2))
sketch3.addConstraint(Sketcher.Constraint("Horizontal", 1, 3, 2, 3))
sketch3.addConstraint(Sketcher.Constraint("Horizontal", 0, 3, 3, 3))
sketch3.addConstraint(Sketcher.Constraint("Horizontal", 8, 3, 10, 3))
sketch3.addConstraint(Sketcher.Constraint("Horizontal", 9, 3, 11, 3))
sketch3.addConstraint(Sketcher.Constraint("Vertical", 0, 3, 1, 3))
sketch3.addConstraint(Sketcher.Constraint("Vertical", 2, 3, 3, 3))
sketch3.addConstraint(Sketcher.Constraint("Vertical", 8, 3, 9, 3))
sketch3.addConstraint(Sketcher.Constraint("Vertical", 10, 3, 11, 3))
sketch3.addConstraint(Sketcher.Constraint("Diameter", 0, Q("2 mm")))
sketch3.addConstraint(Sketcher.Constraint("Diameter", 8, Q("3 mm")))
sketch3.addConstraint(Sketcher.Constraint("DistanceX", 0, 3, -1, 1, Q("138 mm")))
sketch3.addConstraint(Sketcher.Constraint("DistanceX", 2, 3, -1, 1, Q("122 mm")))
sketch3.addConstraint(Sketcher.Constraint("DistanceX", 8, 3, -1, 1, Q("83 mm")))
sketch3.addConstraint(Sketcher.Constraint("DistanceX", -1, 1, 10, 3, Q("93 mm")))
sketch3.addConstraint(Sketcher.Constraint("DistanceY", 0, 3, 1, 3, Q("16 mm")))
sketch3.addConstraint(Sketcher.Constraint("DistanceY", 0, 3, -1, 1, Q("31.49 mm")))
sketch3.addConstraint(Sketcher.Constraint("DistanceY", -1, 1, 8, 3, Q("22.75 mm")))
sketch3.addConstraint(Sketcher.Constraint("DistanceY", 9, 3, -1, 1, Q("20.01 mm")))
pocket1 = doc.addObject("PartDesign::Pocket", "Pocket")
body.addObject(pocket1)
pocket1.Profile = sketch3
pocket1.Length = 6
pocket1.Reversed = True

sketch4 = doc.addObject("Sketcher::SketchObject", "Sketch003")
body.addObject(sketch4)
sketch4.AttachmentSupport = (doc.XY_Plane, [""])
sketch4.MapMode = "FlatFace"
sketch4.addGeometry(Part.LineSegment(V(-30, 63, 0), V(-30, 48, 0)), False)
sketch4.addGeometry(Part.LineSegment(V(-30, 48, 0), V(-60, 48, 0)), False)
sketch4.addGeometry(Part.LineSegment(V(-60, 48, 0), V(-60, 63, 0)), False)
sketch4.addGeometry(Part.LineSegment(V(-60, 63, 0), V(-30, 63, 0)), False)
sketch4.addConstraint(Sketcher.Constraint("Coincident", 0, 2, 1, 1))
sketch4.addConstraint(Sketcher.Constraint("Coincident", 1, 2, 2, 1))
sketch4.addConstraint(Sketcher.Constraint("Coincident", 2, 2, 3, 1))
sketch4.addConstraint(Sketcher.Constraint("Coincident", 3, 2, 0, 1))
sketch4.addConstraint(Sketcher.Constraint("Vertical", 0))
sketch4.addConstraint(Sketcher.Constraint("Horizontal", 1))
sketch4.addConstraint(Sketcher.Constraint("Vertical", 2))
sketch4.addConstraint(Sketcher.Constraint("Horizontal", 3))
sketch4.addConstraint(Sketcher.Constraint("DistanceX", 1, 2, 1, 1, Q("30 mm")))
sketch4.addConstraint(Sketcher.Constraint("DistanceY", 0, 2, 0, 1, Q("15 mm")))
sketch4.addConstraint(Sketcher.Constraint("DistanceX", 0, 2, -1, 1, Q("30.5 mm")))
sketch4.addConstraint(Sketcher.Constraint("DistanceY", -1, 1, 0, 2, Q("47.75 mm")))
pocket2 = doc.addObject("PartDesign::Pocket", "Pocket001")
body.addObject(pocket2)
pocket2.Profile = sketch4
pocket2.Length = 6
pocket2.Reversed = True

doc.recompute()
